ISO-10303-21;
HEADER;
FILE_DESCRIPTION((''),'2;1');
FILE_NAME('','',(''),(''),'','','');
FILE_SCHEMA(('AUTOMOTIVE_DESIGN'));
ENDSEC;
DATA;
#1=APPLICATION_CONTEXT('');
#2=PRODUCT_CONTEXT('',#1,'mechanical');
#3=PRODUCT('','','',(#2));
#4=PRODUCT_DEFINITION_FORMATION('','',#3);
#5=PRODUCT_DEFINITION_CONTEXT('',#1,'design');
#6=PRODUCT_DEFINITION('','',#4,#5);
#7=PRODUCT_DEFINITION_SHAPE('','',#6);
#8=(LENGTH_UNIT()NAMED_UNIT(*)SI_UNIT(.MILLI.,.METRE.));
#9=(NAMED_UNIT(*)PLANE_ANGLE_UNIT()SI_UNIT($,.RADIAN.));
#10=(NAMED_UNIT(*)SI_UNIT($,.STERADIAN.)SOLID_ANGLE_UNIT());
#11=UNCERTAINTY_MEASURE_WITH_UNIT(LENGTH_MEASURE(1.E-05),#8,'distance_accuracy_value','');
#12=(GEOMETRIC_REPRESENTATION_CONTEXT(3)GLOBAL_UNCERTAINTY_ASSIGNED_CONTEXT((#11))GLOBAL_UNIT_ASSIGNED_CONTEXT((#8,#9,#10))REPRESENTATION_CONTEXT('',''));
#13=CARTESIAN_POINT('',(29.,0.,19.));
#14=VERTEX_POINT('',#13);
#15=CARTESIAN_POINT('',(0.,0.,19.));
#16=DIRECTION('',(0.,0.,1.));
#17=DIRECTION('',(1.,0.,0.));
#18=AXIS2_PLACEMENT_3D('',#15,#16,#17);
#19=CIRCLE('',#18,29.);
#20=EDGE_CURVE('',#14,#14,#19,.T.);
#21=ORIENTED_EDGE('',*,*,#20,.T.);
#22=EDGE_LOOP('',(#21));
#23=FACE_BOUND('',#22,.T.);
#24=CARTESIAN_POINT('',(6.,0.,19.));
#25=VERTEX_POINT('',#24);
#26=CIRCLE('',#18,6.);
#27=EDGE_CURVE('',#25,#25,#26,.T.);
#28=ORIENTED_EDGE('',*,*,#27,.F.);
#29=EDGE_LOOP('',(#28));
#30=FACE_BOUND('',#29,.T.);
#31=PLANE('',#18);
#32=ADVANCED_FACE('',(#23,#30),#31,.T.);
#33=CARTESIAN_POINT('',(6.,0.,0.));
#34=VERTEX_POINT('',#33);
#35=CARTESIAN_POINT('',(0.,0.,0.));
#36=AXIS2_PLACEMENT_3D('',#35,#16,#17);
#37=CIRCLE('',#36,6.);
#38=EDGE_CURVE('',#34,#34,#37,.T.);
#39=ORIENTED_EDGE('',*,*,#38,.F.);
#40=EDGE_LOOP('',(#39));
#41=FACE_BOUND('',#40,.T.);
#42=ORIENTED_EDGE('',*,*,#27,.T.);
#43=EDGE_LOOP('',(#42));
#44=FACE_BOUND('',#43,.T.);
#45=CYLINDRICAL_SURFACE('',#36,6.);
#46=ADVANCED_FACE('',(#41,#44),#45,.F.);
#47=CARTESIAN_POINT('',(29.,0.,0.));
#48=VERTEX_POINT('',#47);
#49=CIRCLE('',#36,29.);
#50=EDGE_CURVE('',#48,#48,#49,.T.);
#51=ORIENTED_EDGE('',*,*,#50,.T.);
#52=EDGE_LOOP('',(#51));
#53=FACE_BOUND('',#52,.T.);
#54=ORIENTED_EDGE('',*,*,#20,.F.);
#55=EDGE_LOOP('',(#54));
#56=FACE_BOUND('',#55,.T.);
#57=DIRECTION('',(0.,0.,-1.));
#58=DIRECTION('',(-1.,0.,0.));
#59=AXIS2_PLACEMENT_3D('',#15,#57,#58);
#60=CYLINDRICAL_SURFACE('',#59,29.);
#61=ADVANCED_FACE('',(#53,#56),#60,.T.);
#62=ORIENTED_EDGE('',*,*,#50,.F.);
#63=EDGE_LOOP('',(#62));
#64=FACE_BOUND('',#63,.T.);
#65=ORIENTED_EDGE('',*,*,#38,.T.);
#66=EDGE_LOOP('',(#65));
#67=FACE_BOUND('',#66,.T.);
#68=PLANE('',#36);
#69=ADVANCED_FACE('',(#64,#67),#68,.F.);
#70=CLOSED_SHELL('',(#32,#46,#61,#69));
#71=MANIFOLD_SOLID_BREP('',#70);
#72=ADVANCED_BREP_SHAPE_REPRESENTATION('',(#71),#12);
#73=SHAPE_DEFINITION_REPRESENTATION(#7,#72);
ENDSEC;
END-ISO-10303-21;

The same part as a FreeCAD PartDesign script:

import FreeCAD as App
import Part
import Sketcher
from FreeCAD import Vector

doc = App.newDocument("Part")
params = doc.addObject("Spreadsheet::Sheet", "Params")
for row, (alias, value) in enumerate([
    ("sketch1_diameter", "58 mm"),
    ("pad1_length", "19 mm"),
    ("sketch2_diameter", "12 mm"),
    ("pocket1_length", "19 mm"),
], start=1):
    params.set(f"A{row}", alias)
    params.set(f"B{row}", "=" + value)
    params.setAlias(f"B{row}", alias)

body = doc.addObject("PartDesign::Body", "Body")

sketch1 = body.newObject("Sketcher::SketchObject", "Sketch")
sketch1.AttachmentSupport = (doc.getObject("XY_Plane"), [""])
sketch1.MapMode = "FlatFace"
sketch1.addGeometry(Part.Circle(Vector(0, 0, 0), Vector(0, 0, 1), 29), False)
sketch1.addConstraint([
    Sketcher.Constraint("Coincident", 0, 3, -1, 1),
    Sketcher.Constraint("Diameter", 0, 58.0),
])
sketch1.setExpression("Constraints[1]", "Params.sketch1_diameter")
pad1 = body.newObject("PartDesign::Pad", "Pad")
pad1.Profile = sketch1
pad1.setExpression("Length", "Params.pad1_length")

sketch2 = body.newObject("Sketcher::SketchObject", "Sketch001")
sketch2.AttachmentSupport = (doc.getObject("XY_Plane"), [""])
sketch2.MapMode = "FlatFace"
sketch2.AttachmentOffset = App.Placement(Vector(0, 0, 19), App.Rotation())
sketch2.addGeometry(Part.Circle(Vector(0, 0, 0), Vector(0, 0, 1), 6), False)
sketch2.addConstraint([
    Sketcher.Constraint("Coincident", 0, 3, -1, 1),
    Sketcher.Constraint("Diameter", 0, 12.0),
])
sketch2.setExpression("Constraints[1]", "Params.sketch2_diameter")
pocket1 = body.newObject("PartDesign::Pocket", "Pocket")
pocket1.Profile = sketch2
pocket1.setExpression("Length", "Params.pocket1_length")

doc.recompute()
